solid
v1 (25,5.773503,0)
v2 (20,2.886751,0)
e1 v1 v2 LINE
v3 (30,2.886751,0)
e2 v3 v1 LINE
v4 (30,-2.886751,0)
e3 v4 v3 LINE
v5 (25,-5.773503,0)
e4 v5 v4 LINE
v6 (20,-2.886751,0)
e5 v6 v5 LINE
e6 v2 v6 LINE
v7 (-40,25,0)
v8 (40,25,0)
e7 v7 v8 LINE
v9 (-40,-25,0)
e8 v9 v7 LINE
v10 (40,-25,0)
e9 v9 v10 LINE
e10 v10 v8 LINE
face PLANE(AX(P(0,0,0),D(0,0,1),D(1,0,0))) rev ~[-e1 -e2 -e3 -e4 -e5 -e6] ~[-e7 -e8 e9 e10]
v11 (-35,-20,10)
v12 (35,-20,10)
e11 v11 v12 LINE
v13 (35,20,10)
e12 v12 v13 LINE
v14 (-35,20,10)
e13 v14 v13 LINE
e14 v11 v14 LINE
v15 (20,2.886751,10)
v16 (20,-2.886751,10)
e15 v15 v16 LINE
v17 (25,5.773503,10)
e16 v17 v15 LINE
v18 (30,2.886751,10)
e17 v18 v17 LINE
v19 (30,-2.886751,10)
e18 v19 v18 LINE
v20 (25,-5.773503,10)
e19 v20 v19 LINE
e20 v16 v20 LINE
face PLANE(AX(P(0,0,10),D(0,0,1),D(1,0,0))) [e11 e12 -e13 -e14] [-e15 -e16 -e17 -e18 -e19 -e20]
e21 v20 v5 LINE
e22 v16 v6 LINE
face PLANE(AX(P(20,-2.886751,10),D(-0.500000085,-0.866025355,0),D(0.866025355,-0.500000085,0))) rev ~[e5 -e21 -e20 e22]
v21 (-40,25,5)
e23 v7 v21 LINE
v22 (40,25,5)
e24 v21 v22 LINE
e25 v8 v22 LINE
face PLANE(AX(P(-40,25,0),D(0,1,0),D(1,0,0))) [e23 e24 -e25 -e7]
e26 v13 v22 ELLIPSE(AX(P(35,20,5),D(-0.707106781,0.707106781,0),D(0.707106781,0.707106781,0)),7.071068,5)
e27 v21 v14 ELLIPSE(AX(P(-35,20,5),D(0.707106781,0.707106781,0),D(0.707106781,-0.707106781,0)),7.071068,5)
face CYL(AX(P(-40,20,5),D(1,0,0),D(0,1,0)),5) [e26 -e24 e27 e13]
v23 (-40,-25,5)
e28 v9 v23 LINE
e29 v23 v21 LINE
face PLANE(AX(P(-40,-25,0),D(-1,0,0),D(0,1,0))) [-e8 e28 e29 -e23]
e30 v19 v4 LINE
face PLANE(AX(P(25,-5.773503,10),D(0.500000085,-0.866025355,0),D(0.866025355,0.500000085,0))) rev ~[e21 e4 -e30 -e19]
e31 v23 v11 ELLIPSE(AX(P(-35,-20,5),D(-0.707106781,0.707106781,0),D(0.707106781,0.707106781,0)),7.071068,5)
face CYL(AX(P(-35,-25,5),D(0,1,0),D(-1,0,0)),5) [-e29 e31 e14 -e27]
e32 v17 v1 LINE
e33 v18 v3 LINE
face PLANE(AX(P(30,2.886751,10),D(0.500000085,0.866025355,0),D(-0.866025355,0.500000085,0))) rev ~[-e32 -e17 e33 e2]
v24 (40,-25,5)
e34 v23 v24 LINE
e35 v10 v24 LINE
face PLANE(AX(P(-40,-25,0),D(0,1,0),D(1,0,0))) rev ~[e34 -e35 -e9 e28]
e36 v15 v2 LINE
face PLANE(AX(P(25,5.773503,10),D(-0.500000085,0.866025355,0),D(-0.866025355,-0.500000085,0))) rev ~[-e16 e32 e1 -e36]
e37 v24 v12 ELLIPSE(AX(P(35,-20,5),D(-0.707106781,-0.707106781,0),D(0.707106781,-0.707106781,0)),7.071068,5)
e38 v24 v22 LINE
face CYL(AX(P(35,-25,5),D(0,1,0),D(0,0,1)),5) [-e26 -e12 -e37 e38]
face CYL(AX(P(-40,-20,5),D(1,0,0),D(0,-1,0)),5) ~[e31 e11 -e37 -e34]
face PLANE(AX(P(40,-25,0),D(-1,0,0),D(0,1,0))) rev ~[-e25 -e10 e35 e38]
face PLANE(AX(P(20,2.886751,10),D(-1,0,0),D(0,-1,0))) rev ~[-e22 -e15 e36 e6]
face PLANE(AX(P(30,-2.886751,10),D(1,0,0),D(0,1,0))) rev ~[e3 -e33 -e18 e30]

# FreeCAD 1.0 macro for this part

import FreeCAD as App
import Part
import Sketcher
from FreeCAD import Vector
Q = App.Units.Quantity


def edges_at(feature, points):
    """Names of the edges that pass closest to the given points."""
    edges = feature.Shape.Edges
    near = lambda p: min(range(len(edges)), key=lambda i: edges[i].distToShape(Part.Vertex(*p))[0])
    return sorted({f"Edge{near(p) + 1}" for p in points})

doc = App.newDocument("Part")
body = doc.addObject("PartDesign::Body", "Body")

# Sketch on XY plane
sketch1 = body.newObject("Sketcher::SketchObject", "Sketch")
sketch1.AttachmentSupport = (doc.getObject("XY_Plane"), [""])
sketch1.MapMode = "FlatFace"
sketch1.addGeometry(Part.LineSegment(Vector(-40, 25, 0), Vector(-40, -25, 0)), False)
sketch1.addGeometry(Part.LineSegment(Vector(-40, -25, 0), Vector(40, -25, 0)), False)
sketch1.addGeometry(Part.LineSegment(Vector(40, -25, 0), Vector(40, 25, 0)), False)
sketch1.addGeometry(Part.LineSegment(Vector(40, 25, 0), Vector(-40, 25, 0)), False)
sketch1.addConstraint(Sketcher.Constraint("Coincident", 0, 2, 1, 1))
sketch1.addConstraint(Sketcher.Constraint("Coincident", 1, 2, 2, 1))
sketch1.addConstraint(Sketcher.Constraint("Coincident", 2, 2, 3, 1))
sketch1.addConstraint(Sketcher.Constraint("Coincident", 3, 2, 0, 1))
sketch1.addConstraint(Sketcher.Constraint("Vertical", 0))
sketch1.addConstraint(Sketcher.Constraint("Horizontal", 1))
sketch1.addConstraint(Sketcher.Constraint("Vertical", 2))
sketch1.addConstraint(Sketcher.Constraint("Horizontal", 3))
sketch1.addConstraint(Sketcher.Constraint("Symmetric", 0, 2, 2, 2, -1, 1))
sketch1.addConstraint(Sketcher.Constraint("DistanceX", 1, 1, 1, 2, Q("80 mm")))
sketch1.addConstraint(Sketcher.Constraint("DistanceY", 0, 2, 0, 1, Q("50 mm")))
pad1 = body.newObject("PartDesign::Pad", "Pad")
pad1.Profile = sketch1
pad1.Length = 10

# Sketch on XY plane
sketch2 = body.newObject("Sketcher::SketchObject", "Sketch001")
sketch2.AttachmentSupport = (doc.getObject("XY_Plane"), [""])
sketch2.MapMode = "FlatFace"
sketch2.AttachmentOffset = App.Placement(Vector(0, 0, 10), App.Rotation())
sketch2.addGeometry(Part.LineSegment(Vector(25, -6, 0), Vector(30, -3, 0)), False)
sketch2.addGeometry(Part.LineSegment(Vector(30, -3, 0), Vector(30, 3, 0)), False)
sketch2.addGeometry(Part.LineSegment(Vector(30, 3, 0), Vector(25, 6, 0)), False)
sketch2.addGeometry(Part.LineSegment(Vector(25, 6, 0), Vector(20, 3, 0)), False)
sketch2.addGeometry(Part.LineSegment(Vector(20, 3, 0), Vector(20, -3, 0)), False)
sketch2.addGeometry(Part.LineSegment(Vector(20, -3, 0), Vector(25, -6, 0)), False)
sketch2.addConstraint(Sketcher.Constraint("Coincident", 0, 2, 1, 1))
sketch2.addConstraint(Sketcher.Constraint("Coincident", 1, 2, 2, 1))
sketch2.addConstraint(Sketcher.Constraint("Coincident", 2, 2, 3, 1))
sketch2.addConstraint(Sketcher.Constraint("Coincident", 3, 2, 4, 1))
sketch2.addConstraint(Sketcher.Constraint("Coincident", 4, 2, 5, 1))
sketch2.addConstraint(Sketcher.Constraint("Coincident", 5, 2, 0, 1))
sketch2.addConstraint(Sketcher.Constraint("Vertical", 1))
sketch2.addConstraint(Sketcher.Constraint("Vertical", 4))
sketch2.addConstraint(Sketcher.Constraint("Symmetric", 2, 2, 5, 2, -1))
sketch2.addConstraint(Sketcher.Constraint("Parallel", 0, 3))
sketch2.addConstraint(Sketcher.Constraint("Parallel", 2, 5))
sketch2.addConstraint(Sketcher.Constraint("Horizontal", 1, 2, 3, 2))
sketch2.addConstraint(Sketcher.Constraint("Horizontal", 0, 2, 4, 2))
sketch2.addConstraint(Sketcher.Constraint("Angle", 0, Q("30.000006 deg")))
sketch2.addConstraint(Sketcher.Constraint("DistanceX", -1, 1, 0, 2, Q("30 mm")))
sketch2.addConstraint(Sketcher.Constraint("DistanceX", -1, 1, 2, 2, Q("25 mm")))
sketch2.addConstraint(Sketcher.Constraint("DistanceY", 1, 1, 1, 2, Q("5.773502 mm")))
pocket1 = body.newObject("PartDesign::Pocket", "Pocket")
pocket1.Profile = sketch2
pocket1.Length = 15
doc.recompute()

fillet = body.newObject("PartDesign::Fillet", "Fillet")
fillet.Base = (pocket1, edges_at(pocket1, [
    (0, -25, 10),
    (40, 0, 10),
    (0, 25, 10),
    (-40, 0, 10),
]))
fillet.Radius = 5

doc.recompute()
